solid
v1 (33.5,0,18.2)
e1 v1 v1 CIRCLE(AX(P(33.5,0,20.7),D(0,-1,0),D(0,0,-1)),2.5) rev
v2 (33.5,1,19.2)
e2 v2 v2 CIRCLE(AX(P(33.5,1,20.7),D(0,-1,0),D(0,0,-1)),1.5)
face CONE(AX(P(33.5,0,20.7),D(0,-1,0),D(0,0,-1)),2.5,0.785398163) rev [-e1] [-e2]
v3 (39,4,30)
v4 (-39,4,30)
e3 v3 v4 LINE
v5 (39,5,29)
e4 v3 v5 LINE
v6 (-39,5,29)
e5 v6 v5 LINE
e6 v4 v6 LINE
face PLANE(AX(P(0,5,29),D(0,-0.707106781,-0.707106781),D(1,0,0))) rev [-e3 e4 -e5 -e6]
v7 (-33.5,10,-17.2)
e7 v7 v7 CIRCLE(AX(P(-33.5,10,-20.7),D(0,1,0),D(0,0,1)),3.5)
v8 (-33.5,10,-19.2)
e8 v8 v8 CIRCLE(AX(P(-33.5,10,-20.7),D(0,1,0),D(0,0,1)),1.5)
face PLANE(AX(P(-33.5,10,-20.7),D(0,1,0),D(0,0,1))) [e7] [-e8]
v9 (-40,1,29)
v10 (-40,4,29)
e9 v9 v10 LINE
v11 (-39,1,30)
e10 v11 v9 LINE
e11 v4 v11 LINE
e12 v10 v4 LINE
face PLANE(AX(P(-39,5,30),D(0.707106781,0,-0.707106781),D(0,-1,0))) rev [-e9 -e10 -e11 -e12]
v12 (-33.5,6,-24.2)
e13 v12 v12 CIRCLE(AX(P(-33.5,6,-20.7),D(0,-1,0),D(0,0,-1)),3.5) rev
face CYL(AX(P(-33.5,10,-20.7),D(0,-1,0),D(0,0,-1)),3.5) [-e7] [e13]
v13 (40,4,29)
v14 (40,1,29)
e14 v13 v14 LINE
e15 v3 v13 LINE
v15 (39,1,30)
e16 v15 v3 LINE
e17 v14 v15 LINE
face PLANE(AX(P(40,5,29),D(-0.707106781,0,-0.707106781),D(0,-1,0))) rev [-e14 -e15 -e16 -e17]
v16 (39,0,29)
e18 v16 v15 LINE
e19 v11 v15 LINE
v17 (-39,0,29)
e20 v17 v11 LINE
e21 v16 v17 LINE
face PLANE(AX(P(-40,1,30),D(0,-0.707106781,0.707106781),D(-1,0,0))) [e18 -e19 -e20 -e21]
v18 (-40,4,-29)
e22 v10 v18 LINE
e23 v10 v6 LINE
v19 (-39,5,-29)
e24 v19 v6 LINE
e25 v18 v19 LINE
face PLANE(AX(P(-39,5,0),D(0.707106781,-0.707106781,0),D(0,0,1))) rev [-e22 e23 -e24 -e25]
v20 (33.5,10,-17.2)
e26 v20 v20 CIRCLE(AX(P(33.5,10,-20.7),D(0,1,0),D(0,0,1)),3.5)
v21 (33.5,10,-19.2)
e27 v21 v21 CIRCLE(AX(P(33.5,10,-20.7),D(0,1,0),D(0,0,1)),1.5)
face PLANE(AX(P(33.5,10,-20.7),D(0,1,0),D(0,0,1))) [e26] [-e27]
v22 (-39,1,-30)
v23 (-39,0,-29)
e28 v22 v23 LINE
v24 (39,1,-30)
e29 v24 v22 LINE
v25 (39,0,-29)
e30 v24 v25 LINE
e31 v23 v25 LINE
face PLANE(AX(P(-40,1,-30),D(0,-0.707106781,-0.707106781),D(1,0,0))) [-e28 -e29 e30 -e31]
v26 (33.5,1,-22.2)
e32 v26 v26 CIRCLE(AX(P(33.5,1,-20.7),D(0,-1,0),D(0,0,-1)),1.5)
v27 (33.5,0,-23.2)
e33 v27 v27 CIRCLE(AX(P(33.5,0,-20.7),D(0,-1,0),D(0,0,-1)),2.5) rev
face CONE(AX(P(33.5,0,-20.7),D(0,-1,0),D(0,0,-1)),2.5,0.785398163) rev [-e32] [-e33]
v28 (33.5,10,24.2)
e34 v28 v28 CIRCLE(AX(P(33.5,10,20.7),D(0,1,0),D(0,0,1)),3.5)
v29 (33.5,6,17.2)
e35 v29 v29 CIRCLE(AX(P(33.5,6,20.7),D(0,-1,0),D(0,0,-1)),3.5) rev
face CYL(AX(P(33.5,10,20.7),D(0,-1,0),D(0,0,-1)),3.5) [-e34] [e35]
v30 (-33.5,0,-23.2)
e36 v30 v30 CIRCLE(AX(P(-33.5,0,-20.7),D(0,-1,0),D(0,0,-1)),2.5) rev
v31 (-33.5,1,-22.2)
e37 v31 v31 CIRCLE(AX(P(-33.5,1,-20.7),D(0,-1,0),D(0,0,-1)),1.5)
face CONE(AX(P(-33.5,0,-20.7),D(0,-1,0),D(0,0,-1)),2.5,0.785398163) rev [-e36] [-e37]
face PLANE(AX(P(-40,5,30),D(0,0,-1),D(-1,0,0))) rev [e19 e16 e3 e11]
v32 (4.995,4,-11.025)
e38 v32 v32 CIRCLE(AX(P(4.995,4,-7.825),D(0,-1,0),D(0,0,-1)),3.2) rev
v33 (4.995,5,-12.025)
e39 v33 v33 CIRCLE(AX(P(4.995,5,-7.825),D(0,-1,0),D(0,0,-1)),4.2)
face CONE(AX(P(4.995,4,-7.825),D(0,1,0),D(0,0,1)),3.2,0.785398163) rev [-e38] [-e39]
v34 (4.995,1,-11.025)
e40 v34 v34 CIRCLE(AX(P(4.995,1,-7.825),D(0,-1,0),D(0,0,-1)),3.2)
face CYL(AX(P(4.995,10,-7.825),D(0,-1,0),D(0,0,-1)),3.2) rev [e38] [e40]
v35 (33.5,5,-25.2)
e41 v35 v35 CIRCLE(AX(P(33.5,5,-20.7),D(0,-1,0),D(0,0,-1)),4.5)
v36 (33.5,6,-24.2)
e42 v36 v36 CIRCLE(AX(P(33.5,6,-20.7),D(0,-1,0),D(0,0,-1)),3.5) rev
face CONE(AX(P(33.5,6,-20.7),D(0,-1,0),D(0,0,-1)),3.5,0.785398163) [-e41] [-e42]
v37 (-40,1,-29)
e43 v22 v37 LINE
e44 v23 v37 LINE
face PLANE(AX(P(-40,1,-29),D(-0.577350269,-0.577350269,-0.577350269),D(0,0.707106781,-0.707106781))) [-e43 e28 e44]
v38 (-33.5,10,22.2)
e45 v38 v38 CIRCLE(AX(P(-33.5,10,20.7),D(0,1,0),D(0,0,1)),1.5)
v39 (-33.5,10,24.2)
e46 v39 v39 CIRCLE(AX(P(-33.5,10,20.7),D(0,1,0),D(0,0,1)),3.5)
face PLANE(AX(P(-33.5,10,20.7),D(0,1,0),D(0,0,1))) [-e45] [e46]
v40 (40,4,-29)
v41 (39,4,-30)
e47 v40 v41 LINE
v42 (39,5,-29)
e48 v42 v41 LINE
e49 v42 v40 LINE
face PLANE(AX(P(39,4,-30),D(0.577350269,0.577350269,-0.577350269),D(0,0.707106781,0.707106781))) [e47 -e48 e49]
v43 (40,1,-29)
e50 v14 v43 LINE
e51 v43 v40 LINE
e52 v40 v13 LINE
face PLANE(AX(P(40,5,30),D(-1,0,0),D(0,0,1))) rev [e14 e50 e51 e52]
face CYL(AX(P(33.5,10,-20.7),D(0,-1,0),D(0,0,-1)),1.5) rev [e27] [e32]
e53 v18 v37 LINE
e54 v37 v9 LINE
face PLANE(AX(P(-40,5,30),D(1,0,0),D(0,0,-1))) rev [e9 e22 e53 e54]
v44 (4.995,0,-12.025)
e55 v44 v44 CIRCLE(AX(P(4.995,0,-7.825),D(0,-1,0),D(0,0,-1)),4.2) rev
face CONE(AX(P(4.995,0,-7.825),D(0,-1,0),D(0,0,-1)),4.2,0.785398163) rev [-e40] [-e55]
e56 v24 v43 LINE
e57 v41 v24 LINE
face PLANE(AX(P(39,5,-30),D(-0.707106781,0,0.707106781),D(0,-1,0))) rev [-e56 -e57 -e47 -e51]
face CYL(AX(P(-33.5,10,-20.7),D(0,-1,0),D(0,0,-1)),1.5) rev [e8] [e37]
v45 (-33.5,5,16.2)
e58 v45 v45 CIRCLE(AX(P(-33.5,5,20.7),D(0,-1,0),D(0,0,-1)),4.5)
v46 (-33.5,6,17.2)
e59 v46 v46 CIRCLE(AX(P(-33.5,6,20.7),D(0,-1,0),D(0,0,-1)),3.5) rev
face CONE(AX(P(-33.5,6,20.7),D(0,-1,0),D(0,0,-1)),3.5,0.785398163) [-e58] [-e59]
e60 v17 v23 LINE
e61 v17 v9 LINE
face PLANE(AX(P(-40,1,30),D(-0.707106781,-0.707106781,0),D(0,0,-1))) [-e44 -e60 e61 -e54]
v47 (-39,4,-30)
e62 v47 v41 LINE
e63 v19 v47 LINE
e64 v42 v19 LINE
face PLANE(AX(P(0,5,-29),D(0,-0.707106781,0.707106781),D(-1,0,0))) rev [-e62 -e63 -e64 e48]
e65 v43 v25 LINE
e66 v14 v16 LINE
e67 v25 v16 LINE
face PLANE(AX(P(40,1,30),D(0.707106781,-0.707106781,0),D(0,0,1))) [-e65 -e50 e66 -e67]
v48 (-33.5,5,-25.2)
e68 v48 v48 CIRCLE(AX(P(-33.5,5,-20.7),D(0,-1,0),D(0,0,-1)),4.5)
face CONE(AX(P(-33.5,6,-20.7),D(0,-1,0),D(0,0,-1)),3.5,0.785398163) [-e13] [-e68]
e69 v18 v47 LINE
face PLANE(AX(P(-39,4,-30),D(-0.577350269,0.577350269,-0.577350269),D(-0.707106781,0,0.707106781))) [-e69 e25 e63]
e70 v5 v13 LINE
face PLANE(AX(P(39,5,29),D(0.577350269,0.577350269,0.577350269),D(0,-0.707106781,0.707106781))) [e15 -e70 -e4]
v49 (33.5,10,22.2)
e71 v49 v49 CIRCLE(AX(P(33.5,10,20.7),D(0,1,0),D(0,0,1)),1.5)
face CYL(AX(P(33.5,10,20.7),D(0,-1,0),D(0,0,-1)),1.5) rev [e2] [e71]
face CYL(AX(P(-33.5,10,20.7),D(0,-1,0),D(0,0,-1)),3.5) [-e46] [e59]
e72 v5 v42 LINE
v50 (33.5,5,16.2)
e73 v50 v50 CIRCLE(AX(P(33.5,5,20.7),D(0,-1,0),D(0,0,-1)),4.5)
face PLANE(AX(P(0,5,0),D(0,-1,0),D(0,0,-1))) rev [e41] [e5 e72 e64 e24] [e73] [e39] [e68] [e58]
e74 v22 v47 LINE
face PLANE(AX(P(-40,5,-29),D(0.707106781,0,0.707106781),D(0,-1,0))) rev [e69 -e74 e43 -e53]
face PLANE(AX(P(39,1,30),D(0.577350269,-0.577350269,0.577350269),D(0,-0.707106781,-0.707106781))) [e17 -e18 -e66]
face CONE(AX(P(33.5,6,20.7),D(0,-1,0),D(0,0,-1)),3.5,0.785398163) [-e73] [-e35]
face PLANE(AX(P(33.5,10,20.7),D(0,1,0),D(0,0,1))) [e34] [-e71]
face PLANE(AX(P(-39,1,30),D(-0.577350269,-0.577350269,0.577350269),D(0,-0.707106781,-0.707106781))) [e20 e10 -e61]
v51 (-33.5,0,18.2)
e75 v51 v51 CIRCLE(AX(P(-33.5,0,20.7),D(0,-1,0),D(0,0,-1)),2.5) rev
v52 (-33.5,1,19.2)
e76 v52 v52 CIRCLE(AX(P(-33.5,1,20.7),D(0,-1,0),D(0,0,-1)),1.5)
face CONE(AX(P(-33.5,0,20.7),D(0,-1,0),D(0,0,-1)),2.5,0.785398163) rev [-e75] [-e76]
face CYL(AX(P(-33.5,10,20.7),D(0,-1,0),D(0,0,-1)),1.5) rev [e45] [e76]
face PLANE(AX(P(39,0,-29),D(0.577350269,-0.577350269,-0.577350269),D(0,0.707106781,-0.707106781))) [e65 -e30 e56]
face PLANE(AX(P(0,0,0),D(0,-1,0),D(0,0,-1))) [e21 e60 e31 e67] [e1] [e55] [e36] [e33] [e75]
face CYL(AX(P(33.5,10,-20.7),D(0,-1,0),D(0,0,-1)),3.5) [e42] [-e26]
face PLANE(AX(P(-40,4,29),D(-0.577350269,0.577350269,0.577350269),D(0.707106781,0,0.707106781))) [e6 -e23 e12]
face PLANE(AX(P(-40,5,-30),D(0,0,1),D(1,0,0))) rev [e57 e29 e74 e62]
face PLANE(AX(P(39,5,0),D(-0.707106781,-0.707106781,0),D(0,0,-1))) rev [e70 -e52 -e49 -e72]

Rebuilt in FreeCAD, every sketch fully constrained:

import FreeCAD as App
import Part
import Sketcher
from FreeCAD import Vector
Q = App.Units.Quantity


def edges_at(feature, points):
    """Names of the edges that pass closest to the given points."""
    edges = feature.Shape.Edges
    near = lambda p: min(range(len(edges)), key=lambda i: edges[i].distToShape(Part.Vertex(*p))[0])
    return sorted({f"Edge{near(p) + 1}" for p in points})


def add_polygon(sketch, points):
    """Adds a closed chain of lines whose ends are joined by coincident constraints."""
    first, n = sketch.GeometryCount, len(points)
    for a, b in zip(points, points[1:] + points[:1]):
        sketch.addGeometry(Part.LineSegment(App.Vector(*a, 0), App.Vector(*b, 0)), False)
    for i in range(n):
        sketch.addConstraint(Sketcher.Constraint("Coincident", first + i, 2, first + (i + 1) % n, 1))

doc = App.newDocument("Part")
params = doc.addObject("Spreadsheet::Sheet", "Params")
for row, (alias, value) in enumerate([
    ("sketch1_width", "80 mm"),
    ("sketch1_height", "60 mm"),
    ("pad1_length", "5 mm"),
    ("sketch2_diameter", "7 mm"),
    ("pad2_length", "5 mm"),
    ("sketch3_diameter", "3 mm"),
    ("sketch3_diameter2", "6.4 mm"),
    ("chamfer_size", "1 mm"),
], start=1):
    params.set(f"A{row}", alias)
    params.set(f"B{row}", "=" + value)
    params.setAlias(f"B{row}", alias)

body = doc.addObject("PartDesign::Body", "Body")

# Sketch on XZ plane
sketch1 = body.newObject("Sketcher::SketchObject", "Sketch")
sketch1.AttachmentSupport = (doc.getObject("XZ_Plane"), [""])
sketch1.MapMode = "FlatFace"
add_polygon(sketch1, [(-40, -30), (-40, 30), (40, 30), (40, -30)])  # lines 0-3
sketch1.addConstraint([
    Sketcher.Constraint("Vertical", 0),
    Sketcher.Constraint("Horizontal", 1),
    Sketcher.Constraint("Vertical", 2),
    Sketcher.Constraint("Horizontal", 3),
    Sketcher.Constraint("Symmetric", 0, 2, 2, 2, -1, 1),
    Sketcher.Constraint("DistanceX", 1, 1, 1, 2, Q("80 mm")),
    Sketcher.Constraint("DistanceY", 0, 1, 0, 2, Q("60 mm")),
])
sketch1.setExpression("Constraints[9]", "Params.sketch1_width")
sketch1.setExpression("Constraints[10]", "Params.sketch1_height")
pad1 = body.newObject("PartDesign::Pad", "Pad")
pad1.Profile = sketch1
pad1.setExpression("Length", "Params.pad1_length")
pad1.Reversed = True

# Sketch on XZ plane
sketch2 = body.newObject("Sketcher::SketchObject", "Sketch001")
sketch2.AttachmentSupport = (doc.getObject("XZ_Plane"), [""])
sketch2.MapMode = "FlatFace"
sketch2.AttachmentOffset = App.Placement(Vector(0, 0, -5), App.Rotation())
sketch2.addGeometry([
    Part.Circle(Vector(33.5, -20.7, 0), Vector(0, 0, 1), 3.5),
    Part.Circle(Vector(33.5, 20.7, 0), Vector(0, 0, 1), 3.5),
    Part.Circle(Vector(-33.5, 20.7, 0), Vector(0, 0, 1), 3.5),
    Part.Circle(Vector(-33.5, -20.7, 0), Vector(0, 0, 1), 3.5),
], False)
sketch2.addConstraint([
    Sketcher.Constraint("Equal", 0, 1),
    Sketcher.Constraint("Equal", 1, 2),
    Sketcher.Constraint("Equal", 2, 3),
    Sketcher.Constraint("Symmetric", 0, 3, 2, 3, -1, 1),
    Sketcher.Constraint("Symmetric", 1, 3, 3, 3, -1, 1),
    Sketcher.Constraint("Symmetric", 1, 3, 2, 3, -2),
    Sketcher.Constraint("Diameter", 0, Q("7 mm")),
    Sketcher.Constraint("DistanceX", 2, 3, 1, 3, Q("67 mm")),
    Sketcher.Constraint("DistanceY", 0, 3, -1, 1, Q("20.7 mm")),
])
sketch2.setExpression("Constraints[6]", "Params.sketch2_diameter")
pad2 = body.newObject("PartDesign::Pad", "Pad001")
pad2.Profile = sketch2
pad2.setExpression("Length", "Params.pad2_length")
pad2.Reversed = True

# Sketch on XZ plane
sketch3 = body.newObject("Sketcher::SketchObject", "Sketch002")
sketch3.AttachmentSupport = (doc.getObject("XZ_Plane"), [""])
sketch3.MapMode = "FlatFace"
sketch3.addGeometry([
    Part.Circle(Vector(33.5, 20.7, 0), Vector(0, 0, 1), 1.5),  # 0
    Part.Circle(Vector(33.5, -20.7, 0), Vector(0, 0, 1), 1.5),  # 1
    Part.Circle(Vector(-33.5, 20.7, 0), Vector(0, 0, 1), 1.5),  # 2
    Part.Circle(Vector(-33.5, -20.7, 0), Vector(0, 0, 1), 1.5),  # 3
    Part.Circle(Vector(5, -7.8, 0), Vector(0, 0, 1), 3.2),  # 4
], False)
sketch3.addConstraint([
    Sketcher.Constraint("Equal", 0, 1),
    Sketcher.Constraint("Equal", 1, 2),
    Sketcher.Constraint("Equal", 2, 3),
    Sketcher.Constraint("Symmetric", 1, 3, 2, 3, -1, 1),
    Sketcher.Constraint("Symmetric", 0, 3, 3, 3, -1, 1),
    Sketcher.Constraint("Symmetric", 0, 3, 2, 3, -2),
    Sketcher.Constraint("Diameter", 0, Q("3 mm")),
    Sketcher.Constraint("Diameter", 4, Q("6.4 mm")),
    Sketcher.Constraint("DistanceX", 2, 3, 0, 3, Q("67 mm")),
    Sketcher.Constraint("DistanceY", -1, 1, 0, 3, Q("20.7 mm")),
    Sketcher.Constraint("DistanceX", -1, 1, 4, 3, Q("4.995 mm")),
    Sketcher.Constraint("DistanceY", 4, 3, -1, 1, Q("7.825 mm")),
])
sketch3.setExpression("Constraints[6]", "Params.sketch3_diameter")
sketch3.setExpression("Constraints[7]", "Params.sketch3_diameter2")
pocket1 = body.newObject("PartDesign::Pocket", "Pocket")
pocket1.Profile = sketch3
pocket1.Type = "ThroughAll"
doc.recompute()

chamfer = body.newObject("PartDesign::Chamfer", "Chamfer")
chamfer.Base = (pocket1, edges_at(pocket1, [
    (-40, 5, 0),
    (30, 5, -20.7),
    (0, 5, 30),
    (30, 5, 20.7),
    (-37, 5, 20.7),
    (-37, 5, -20.7),
    (32, 0, -20.7),
    (-35, 0, 20.7),
    (-35, 0, -20.7),
    (1.795, 0, -7.825),
    (1.795, 5, -7.825),
    (32, 0, 20.7),
    (40, 5, 0),
    (0, 0, 30),
    (-40, 0, 0),
    (0, 0, -30),
    (40, 0, 0),
    (40, 2.5, 30),
    (-40, 2.5, 30),
    (-40, 2.5, -30),
    (40, 2.5, -30),
    (0, 5, -30),
]))
chamfer.setExpression("Size", "Params.chamfer_size")

doc.recompute()
